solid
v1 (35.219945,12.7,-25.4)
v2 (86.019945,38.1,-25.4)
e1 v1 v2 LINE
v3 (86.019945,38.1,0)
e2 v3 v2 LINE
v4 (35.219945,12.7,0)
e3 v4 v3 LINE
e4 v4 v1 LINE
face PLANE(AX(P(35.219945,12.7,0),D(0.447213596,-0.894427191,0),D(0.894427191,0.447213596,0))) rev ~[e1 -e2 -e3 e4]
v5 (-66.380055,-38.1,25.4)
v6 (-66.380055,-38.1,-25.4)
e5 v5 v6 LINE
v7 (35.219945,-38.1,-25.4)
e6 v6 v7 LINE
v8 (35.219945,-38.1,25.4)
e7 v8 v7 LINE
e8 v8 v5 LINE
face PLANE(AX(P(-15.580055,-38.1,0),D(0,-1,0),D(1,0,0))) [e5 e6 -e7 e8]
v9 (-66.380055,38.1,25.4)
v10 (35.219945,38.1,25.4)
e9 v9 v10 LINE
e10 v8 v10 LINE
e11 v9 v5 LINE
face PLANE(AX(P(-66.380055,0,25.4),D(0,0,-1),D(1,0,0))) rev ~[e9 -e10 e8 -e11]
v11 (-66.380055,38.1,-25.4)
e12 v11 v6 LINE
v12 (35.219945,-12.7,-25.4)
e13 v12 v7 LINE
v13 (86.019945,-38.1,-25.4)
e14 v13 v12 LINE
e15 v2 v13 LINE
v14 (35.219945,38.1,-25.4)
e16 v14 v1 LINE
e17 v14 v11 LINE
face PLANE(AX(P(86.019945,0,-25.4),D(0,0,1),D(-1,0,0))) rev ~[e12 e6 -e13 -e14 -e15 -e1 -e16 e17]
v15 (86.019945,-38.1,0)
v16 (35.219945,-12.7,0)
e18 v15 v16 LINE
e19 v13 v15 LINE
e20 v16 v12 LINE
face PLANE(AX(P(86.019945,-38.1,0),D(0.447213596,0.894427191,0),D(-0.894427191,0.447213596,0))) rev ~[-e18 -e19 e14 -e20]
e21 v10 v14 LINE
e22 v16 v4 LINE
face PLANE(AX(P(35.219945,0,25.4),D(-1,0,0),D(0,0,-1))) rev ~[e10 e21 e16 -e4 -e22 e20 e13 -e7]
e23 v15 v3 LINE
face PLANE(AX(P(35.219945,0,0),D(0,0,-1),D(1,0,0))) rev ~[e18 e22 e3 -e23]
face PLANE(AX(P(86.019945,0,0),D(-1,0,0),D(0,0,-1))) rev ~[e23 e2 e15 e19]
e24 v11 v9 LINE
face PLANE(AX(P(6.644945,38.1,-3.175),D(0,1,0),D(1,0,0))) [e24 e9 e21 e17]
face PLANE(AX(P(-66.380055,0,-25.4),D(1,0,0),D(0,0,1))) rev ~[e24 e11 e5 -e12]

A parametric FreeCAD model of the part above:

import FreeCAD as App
import Part
import Sketcher
from FreeCAD import Vector
Q = App.Units.Quantity


def add_polygon(sketch, points):
    """Adds a closed chain of lines whose ends are joined by coincident constraints."""
    first, n = sketch.GeometryCount, len(points)
    for a, b in zip(points, points[1:] + points[:1]):
        sketch.addGeometry(Part.LineSegment(App.Vector(*a, 0), App.Vector(*b, 0)), False)
    for i in range(n):
        sketch.addConstraint(Sketcher.Constraint("Coincident", first + i, 2, first + (i + 1) % n, 1))

doc = App.newDocument("Part")
body = doc.addObject("PartDesign::Body", "Body")

sketch1 = doc.addObject("Sketcher::SketchObject", "Sketch")
body.addObject(sketch1)
sketch1.AttachmentSupport = (doc.XZ_Plane, [""])
sketch1.MapMode = "FlatFace"
add_polygon(sketch1, [(35.219945, 25.4), (-66.380055, 25.4), (-66.380055, -25.4), (86.019945, -25.4), (86.019945, 0), (35.219945, 0)])
sketch1.addConstraint(Sketcher.Constraint("Horizontal", 0))
sketch1.addConstraint(Sketcher.Constraint("Vertical", 1))
sketch1.addConstraint(Sketcher.Constraint("Horizontal", 2))
sketch1.addConstraint(Sketcher.Constraint("Vertical", 3))
sketch1.addConstraint(Sketcher.Constraint("Horizontal", 4))
sketch1.addConstraint(Sketcher.Constraint("Vertical", 5))
sketch1.addConstraint(Sketcher.Constraint("PointOnObject", 3, 2, -1))
sketch1.addConstraint(Sketcher.Constraint("Equal", 4, 1))
sketch1.addConstraint(Sketcher.Constraint("Equal", 3, 5))
sketch1.addConstraint(Sketcher.Constraint("DistanceX", 0, 2, 0, 1, Q("4 in")))
sketch1.addConstraint(Sketcher.Constraint("DistanceX", 2, 1, 2, 2, Q("6 in")))
sketch1.addConstraint(Sketcher.Constraint("DistanceX", 0, 2, -1, 1, Q("66.380055 mm")))
pad1 = doc.addObject("PartDesign::Pad", "Pad")
body.addObject(pad1)
pad1.Profile = sketch1
pad1.Length = Q("1.5 in")

sketch2 = doc.addObject("Sketcher::SketchObject", "Sketch001")
body.addObject(sketch2)
sketch2.AttachmentSupport = (doc.XZ_Plane, [""])
sketch2.MapMode = "FlatFace"
add_polygon(sketch2, [(-66.380055, 25.4), (35.219945, 25.4), (35.219945, 0), (86.019945, 0), (86.019945, -25.4), (-66.380055, -25.4)])
sketch2.addConstraint(Sketcher.Constraint("Horizontal", 0))
sketch2.addConstraint(Sketcher.Constraint("Vertical", 1))
sketch2.addConstraint(Sketcher.Constraint("Horizontal", 2))
sketch2.addConstraint(Sketcher.Constraint("Vertical", 3))
sketch2.addConstraint(Sketcher.Constraint("Horizontal", 4))
sketch2.addConstraint(Sketcher.Constraint("Vertical", 5))
sketch2.addConstraint(Sketcher.Constraint("PointOnObject", 1, 2, -1))
sketch2.addConstraint(Sketcher.Constraint("Equal", 1, 3))
sketch2.addConstraint(Sketcher.Constraint("Equal", 2, 5))
sketch2.addConstraint(Sketcher.Constraint("DistanceX", 0, 1, 0, 2, Q("4 in")))
sketch2.addConstraint(Sketcher.Constraint("DistanceX", 2, 1, 2, 2, Q("2 in")))
sketch2.addConstraint(Sketcher.Constraint("DistanceX", -1, 1, 0, 2, Q("35.219945 mm")))
pad2 = doc.addObject("PartDesign::Pad", "Pad001")
body.addObject(pad2)
pad2.Profile = sketch2
pad2.Length = Q("1.5 in")
pad2.Reversed = True

sketch3 = doc.addObject("Sketcher::SketchObject", "Sketch002")
body.addObject(sketch3)
sketch3.AttachmentSupport = (doc.XY_Plane, [""])
sketch3.MapMode = "FlatFace"
add_polygon(sketch3, [(35.219945, -38.1), (86.019945, -38.1), (35.219945, -12.7)])
add_polygon(sketch3, [(35.219945, 12.7), (86.019945, 38.1), (35.219945, 38.1)])
sketch3.addConstraint(Sketcher.Constraint("Horizontal", 0))
sketch3.addConstraint(Sketcher.Constraint("Vertical", 2))
sketch3.addConstraint(Sketcher.Constraint("Horizontal", 4))
sketch3.addConstraint(Sketcher.Constraint("Vertical", 5))
sketch3.addConstraint(Sketcher.Constraint("Symmetric", 0, 2, 3, 2, -1))
sketch3.addConstraint(Sketcher.Constraint("Symmetric", 1, 2, 5, 2, -1))
sketch3.addConstraint(Sketcher.Constraint("DistanceX", 0, 1, 0, 2, Q("2 in")))
sketch3.addConstraint(Sketcher.Constraint("DistanceY", 2, 2, 2, 1, Q("1 in")))
sketch3.addConstraint(Sketcher.Constraint("DistanceY", 1, 2, 3, 2, Q("2 in")))
sketch3.addConstraint(Sketcher.Constraint("DistanceX", -1, 1, 0, 2, Q("86.019945 mm")))
pocket1 = doc.addObject("PartDesign::Pocket", "Pocket")
body.addObject(pocket1)
pocket1.Profile = sketch3
pocket1.Length = Q("1 in")

doc.recompute()
